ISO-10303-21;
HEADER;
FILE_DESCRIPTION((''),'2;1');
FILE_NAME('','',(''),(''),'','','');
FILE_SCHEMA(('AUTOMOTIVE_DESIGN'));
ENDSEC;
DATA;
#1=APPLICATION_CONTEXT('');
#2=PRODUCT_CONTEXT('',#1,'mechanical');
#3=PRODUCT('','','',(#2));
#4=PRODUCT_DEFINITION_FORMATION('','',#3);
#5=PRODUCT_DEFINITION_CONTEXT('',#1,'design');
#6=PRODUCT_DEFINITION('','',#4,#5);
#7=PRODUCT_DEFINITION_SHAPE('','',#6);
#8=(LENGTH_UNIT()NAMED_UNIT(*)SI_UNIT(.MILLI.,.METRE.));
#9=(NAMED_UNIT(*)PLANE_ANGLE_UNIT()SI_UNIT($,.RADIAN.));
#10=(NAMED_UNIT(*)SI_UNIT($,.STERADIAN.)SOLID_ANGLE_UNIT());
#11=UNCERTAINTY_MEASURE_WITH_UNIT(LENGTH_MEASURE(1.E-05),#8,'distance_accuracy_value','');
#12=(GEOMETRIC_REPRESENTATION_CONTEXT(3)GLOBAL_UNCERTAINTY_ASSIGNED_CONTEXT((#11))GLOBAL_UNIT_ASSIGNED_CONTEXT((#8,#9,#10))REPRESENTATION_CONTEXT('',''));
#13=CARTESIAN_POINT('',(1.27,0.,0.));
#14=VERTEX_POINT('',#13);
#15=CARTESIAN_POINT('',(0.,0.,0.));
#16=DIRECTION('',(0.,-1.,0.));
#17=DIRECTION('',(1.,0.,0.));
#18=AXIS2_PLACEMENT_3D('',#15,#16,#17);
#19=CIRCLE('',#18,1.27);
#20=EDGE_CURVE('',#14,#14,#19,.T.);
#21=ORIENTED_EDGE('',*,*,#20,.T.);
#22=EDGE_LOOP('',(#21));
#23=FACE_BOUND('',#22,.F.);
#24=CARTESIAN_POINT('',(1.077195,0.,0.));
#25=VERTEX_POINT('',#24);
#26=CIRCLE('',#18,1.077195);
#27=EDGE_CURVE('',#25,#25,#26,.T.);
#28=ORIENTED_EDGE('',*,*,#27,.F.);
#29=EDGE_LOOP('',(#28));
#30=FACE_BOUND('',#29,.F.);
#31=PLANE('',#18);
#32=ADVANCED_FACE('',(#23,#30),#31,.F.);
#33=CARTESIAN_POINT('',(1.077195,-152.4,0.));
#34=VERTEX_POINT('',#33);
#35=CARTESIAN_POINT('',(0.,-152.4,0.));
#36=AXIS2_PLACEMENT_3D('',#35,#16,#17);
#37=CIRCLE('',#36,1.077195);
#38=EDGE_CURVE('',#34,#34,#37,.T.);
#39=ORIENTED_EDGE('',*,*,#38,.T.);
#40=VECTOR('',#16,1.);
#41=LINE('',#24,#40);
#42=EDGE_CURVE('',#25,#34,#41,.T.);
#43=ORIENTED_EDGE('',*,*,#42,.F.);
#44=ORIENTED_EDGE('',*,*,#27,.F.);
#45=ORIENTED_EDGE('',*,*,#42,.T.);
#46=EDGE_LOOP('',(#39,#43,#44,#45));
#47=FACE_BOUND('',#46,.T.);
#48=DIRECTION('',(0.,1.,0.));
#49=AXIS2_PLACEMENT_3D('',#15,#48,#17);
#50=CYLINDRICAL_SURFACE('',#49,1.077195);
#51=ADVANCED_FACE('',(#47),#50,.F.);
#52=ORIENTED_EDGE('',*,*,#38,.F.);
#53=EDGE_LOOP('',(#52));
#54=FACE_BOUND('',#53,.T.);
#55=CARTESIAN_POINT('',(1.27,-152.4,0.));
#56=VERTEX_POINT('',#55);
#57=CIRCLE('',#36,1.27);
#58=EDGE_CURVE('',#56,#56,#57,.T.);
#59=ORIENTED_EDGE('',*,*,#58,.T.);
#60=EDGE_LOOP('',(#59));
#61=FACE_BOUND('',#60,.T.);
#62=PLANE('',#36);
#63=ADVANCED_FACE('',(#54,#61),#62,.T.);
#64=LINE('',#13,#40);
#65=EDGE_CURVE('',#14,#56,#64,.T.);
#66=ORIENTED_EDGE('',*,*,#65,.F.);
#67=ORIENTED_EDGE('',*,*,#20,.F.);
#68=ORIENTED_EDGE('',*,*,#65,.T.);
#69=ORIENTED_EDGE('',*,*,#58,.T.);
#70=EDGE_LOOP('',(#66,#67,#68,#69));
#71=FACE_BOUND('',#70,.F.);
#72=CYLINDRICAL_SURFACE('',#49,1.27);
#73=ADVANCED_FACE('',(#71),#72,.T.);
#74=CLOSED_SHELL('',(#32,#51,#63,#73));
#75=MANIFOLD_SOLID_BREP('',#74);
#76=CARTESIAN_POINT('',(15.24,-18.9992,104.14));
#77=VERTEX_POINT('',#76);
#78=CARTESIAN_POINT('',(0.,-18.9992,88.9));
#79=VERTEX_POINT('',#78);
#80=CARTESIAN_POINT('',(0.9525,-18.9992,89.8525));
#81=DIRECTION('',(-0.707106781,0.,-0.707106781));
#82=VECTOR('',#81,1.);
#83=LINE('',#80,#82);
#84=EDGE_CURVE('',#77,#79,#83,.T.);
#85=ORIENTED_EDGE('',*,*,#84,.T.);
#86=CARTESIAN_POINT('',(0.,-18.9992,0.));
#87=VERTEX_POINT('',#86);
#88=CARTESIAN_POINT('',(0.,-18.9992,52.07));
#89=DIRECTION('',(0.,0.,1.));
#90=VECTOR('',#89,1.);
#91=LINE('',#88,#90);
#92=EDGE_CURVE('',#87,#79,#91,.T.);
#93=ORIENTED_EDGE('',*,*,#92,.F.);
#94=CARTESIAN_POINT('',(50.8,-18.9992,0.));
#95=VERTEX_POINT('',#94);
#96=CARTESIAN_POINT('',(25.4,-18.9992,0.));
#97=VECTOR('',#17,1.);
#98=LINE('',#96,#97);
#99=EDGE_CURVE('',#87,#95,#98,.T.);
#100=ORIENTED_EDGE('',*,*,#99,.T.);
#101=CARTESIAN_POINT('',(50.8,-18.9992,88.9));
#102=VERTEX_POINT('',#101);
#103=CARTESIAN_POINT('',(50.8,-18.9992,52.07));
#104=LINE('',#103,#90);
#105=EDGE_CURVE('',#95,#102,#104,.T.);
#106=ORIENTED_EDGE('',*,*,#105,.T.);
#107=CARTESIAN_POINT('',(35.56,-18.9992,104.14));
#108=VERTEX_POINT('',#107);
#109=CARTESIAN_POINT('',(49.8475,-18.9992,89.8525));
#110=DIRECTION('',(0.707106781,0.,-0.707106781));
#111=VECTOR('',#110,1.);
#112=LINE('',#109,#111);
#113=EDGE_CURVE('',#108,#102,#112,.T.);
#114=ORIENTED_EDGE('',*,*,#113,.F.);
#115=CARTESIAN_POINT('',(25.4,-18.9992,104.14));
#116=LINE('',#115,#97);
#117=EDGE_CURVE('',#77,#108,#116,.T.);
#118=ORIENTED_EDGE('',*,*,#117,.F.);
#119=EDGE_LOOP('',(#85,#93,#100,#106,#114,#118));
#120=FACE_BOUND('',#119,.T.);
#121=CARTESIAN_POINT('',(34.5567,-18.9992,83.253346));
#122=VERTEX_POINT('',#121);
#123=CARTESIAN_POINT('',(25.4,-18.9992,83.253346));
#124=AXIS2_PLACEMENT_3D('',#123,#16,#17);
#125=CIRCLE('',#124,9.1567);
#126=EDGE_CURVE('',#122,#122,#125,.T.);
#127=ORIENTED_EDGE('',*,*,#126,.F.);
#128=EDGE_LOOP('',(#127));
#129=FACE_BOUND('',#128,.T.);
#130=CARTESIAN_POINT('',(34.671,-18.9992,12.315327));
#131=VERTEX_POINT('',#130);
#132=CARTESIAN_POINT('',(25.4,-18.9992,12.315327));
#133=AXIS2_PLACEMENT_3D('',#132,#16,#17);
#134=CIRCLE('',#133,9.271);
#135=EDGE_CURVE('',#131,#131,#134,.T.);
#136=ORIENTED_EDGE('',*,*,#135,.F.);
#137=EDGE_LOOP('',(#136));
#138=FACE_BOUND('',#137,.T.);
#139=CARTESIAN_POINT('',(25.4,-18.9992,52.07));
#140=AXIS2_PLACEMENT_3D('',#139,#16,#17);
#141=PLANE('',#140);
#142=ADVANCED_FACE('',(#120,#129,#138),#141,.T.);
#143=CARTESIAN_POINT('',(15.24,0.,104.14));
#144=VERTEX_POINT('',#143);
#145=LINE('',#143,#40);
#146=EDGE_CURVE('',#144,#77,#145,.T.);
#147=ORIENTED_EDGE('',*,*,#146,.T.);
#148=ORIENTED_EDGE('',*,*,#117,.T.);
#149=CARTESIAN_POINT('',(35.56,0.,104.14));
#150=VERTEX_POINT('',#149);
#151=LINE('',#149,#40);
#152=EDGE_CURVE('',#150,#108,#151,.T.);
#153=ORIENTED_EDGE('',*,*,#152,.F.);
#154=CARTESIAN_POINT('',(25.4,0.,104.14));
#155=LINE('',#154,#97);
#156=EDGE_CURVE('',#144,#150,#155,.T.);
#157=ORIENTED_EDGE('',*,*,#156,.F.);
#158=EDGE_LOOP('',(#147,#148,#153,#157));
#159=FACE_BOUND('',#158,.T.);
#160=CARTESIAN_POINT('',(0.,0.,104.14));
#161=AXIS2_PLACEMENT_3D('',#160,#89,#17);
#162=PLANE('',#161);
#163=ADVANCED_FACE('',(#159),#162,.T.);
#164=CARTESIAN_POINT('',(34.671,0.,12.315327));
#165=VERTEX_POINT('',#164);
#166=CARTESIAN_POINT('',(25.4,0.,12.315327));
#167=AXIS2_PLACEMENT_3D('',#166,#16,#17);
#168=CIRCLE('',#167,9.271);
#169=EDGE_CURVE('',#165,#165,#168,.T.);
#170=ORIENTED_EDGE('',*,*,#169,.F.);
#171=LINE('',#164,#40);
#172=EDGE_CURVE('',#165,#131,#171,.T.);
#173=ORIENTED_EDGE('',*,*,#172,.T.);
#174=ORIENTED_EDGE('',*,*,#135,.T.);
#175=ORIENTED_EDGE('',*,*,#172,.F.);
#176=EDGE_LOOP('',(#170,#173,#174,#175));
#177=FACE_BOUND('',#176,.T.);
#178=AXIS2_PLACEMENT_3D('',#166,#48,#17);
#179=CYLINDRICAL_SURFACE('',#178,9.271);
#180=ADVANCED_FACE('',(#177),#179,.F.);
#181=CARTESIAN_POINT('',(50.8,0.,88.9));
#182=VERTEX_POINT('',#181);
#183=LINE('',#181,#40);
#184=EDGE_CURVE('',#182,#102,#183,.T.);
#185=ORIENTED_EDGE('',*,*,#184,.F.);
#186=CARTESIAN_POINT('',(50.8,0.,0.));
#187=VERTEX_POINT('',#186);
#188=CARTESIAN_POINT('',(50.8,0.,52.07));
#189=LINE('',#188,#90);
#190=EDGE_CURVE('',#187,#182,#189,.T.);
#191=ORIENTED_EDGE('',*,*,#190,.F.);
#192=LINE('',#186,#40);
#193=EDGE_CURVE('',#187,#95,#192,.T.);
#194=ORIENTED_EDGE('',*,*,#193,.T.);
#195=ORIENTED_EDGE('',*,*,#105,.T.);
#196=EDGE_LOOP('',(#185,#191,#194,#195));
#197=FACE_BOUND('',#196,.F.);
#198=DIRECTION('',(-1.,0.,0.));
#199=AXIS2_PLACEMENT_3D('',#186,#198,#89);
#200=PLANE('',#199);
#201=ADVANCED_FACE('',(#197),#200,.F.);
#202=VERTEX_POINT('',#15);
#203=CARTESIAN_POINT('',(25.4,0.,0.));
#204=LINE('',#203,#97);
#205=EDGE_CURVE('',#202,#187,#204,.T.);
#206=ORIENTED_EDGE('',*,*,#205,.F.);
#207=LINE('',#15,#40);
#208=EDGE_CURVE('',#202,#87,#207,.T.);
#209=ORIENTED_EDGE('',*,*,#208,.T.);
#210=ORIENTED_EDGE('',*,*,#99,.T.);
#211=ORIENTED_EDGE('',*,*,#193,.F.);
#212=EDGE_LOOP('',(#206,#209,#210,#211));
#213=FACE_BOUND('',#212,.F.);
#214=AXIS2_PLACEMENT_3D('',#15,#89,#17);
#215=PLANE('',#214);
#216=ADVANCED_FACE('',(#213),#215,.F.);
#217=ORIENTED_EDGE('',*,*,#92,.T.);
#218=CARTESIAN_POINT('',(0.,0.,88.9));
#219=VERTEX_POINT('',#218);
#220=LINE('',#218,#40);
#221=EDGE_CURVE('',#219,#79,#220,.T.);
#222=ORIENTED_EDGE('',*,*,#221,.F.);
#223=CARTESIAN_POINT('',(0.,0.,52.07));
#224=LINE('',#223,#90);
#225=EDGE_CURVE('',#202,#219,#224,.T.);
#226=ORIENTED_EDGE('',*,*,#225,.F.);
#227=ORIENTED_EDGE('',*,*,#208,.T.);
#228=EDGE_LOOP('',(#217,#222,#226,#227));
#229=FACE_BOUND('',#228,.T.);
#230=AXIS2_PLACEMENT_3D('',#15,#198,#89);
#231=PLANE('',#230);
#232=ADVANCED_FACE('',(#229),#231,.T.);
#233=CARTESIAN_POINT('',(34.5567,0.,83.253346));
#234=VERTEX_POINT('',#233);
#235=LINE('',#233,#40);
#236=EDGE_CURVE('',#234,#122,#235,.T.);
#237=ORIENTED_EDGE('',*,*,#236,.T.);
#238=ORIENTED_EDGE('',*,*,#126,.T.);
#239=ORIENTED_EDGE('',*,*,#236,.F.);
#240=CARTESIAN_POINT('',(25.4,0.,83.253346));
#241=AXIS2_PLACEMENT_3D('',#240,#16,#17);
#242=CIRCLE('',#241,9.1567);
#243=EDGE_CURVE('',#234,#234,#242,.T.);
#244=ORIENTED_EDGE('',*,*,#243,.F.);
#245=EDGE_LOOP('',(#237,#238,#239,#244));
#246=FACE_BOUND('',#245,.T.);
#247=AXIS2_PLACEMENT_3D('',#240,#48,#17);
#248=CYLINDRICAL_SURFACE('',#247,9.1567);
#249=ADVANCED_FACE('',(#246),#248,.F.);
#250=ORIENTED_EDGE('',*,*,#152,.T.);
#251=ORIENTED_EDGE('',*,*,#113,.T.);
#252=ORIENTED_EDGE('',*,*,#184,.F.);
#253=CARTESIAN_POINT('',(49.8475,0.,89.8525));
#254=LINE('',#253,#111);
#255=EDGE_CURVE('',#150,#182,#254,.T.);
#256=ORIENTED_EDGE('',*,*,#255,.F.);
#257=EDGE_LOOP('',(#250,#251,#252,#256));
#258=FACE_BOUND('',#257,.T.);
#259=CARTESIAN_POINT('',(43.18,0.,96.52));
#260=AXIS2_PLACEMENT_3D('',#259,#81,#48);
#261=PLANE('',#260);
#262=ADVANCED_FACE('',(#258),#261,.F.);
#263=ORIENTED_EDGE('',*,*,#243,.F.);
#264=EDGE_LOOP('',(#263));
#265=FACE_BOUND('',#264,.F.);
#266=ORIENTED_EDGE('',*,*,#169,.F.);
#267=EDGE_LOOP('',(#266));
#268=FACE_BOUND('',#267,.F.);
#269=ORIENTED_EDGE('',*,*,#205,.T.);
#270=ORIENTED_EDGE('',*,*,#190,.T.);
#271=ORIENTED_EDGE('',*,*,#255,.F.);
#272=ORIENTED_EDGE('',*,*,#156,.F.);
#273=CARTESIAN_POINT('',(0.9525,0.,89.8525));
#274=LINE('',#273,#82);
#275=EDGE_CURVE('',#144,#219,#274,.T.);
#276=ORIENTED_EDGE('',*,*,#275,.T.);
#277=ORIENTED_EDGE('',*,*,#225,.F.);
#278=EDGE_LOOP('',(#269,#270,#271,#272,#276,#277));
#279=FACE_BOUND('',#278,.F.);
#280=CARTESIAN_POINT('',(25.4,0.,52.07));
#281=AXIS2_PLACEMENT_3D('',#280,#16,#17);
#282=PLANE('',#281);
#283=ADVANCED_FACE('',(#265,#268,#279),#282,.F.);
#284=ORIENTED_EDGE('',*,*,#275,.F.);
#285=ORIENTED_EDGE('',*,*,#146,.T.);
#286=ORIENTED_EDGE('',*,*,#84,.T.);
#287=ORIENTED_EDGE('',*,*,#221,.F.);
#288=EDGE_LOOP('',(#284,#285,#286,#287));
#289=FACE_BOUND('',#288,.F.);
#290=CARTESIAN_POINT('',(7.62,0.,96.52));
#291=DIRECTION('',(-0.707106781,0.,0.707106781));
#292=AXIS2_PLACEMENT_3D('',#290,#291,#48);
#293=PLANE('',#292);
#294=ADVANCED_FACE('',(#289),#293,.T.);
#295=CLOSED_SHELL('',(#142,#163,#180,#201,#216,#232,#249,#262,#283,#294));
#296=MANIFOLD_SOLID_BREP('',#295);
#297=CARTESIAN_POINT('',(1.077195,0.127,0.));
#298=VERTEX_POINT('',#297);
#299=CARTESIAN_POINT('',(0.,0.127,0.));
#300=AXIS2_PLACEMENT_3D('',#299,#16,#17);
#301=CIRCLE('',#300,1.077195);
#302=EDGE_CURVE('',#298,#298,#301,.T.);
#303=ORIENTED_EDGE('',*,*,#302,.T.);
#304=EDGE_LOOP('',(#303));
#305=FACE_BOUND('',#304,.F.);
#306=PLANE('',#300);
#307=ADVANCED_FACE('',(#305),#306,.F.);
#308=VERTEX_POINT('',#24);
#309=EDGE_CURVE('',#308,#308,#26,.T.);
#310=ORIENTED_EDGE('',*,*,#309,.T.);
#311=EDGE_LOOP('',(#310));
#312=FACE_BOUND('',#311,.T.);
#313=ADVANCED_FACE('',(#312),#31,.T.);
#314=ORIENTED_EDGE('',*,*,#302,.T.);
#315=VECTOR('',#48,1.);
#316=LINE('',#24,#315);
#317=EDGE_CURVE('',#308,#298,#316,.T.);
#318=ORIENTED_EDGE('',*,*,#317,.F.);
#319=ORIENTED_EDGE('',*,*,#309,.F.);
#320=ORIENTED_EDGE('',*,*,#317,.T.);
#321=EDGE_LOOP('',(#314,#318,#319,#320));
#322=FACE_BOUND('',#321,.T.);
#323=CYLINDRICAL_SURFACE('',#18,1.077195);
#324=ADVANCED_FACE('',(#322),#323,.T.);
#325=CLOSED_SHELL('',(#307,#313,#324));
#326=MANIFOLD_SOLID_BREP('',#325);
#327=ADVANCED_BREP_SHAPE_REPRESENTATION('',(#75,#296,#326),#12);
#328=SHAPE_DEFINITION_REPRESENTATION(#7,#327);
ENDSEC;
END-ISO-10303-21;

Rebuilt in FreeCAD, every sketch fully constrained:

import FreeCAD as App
import Part
import Sketcher
from FreeCAD import Vector
Q = App.Units.Quantity


def edges_at(feature, points):
    """Names of the edges that pass closest to the given points."""
    edges = feature.Shape.Edges
    near = lambda p: min(range(len(edges)), key=lambda i: edges[i].distToShape(Part.Vertex(*p))[0])
    return sorted({f"Edge{near(p) + 1}" for p in points})

doc = App.newDocument("Part")
body = doc.addObject("PartDesign::Body", "Body")

sketch1 = doc.addObject("Sketcher::SketchObject", "Sketch")
body.addObject(sketch1)
sketch1.AttachmentSupport = (doc.XZ_Plane, [""])
sketch1.MapMode = "FlatFace"
sketch1.addGeometry([
    Part.Circle(Vector(0, 0, 0), Vector(0, 0, 1), 1.3),
    Part.Circle(Vector(0, 0, 0), Vector(0, 0, 1), 1.1),
], False)
sketch1.addConstraint([
    Sketcher.Constraint("Coincident", 0, 3, -1, 1),
    Sketcher.Constraint("Coincident", 1, 3, -1, 1),
    Sketcher.Constraint("Diameter", 0, Q("0.1 in")),
    Sketcher.Constraint("Diameter", 1, 2.15439),
])
pad1 = doc.addObject("PartDesign::Pad", "Pad")
body.addObject(pad1)
pad1.Profile = sketch1
pad1.Length = Q("6 in")
body2 = doc.addObject("PartDesign::Body", "Body001")

sketch2 = doc.addObject("Sketcher::SketchObject", "Sketch001")
body2.addObject(sketch2)
sketch2.AttachmentSupport = (doc.getObject("XZ_Plane001"), [""])
sketch2.MapMode = "FlatFace"
sketch2.addGeometry(Part.Circle(Vector(0, 0, 0), Vector(0, 0, 1), 1.1), False)
sketch2.addConstraint([
    Sketcher.Constraint("Coincident", 0, 3, -1, 1),
    Sketcher.Constraint("Diameter", 0, 2.15439),
])
pad2 = doc.addObject("PartDesign::Pad", "Pad001")
body2.addObject(pad2)
pad2.Profile = sketch2
pad2.Length = Q("0.005 in")
pad2.Reversed = True
body3 = doc.addObject("PartDesign::Body", "Body002")

sketch3 = doc.addObject("Sketcher::SketchObject", "Sketch002")
body3.addObject(sketch3)
sketch3.AttachmentSupport = (doc.getObject("XZ_Plane002"), [""])
sketch3.MapMode = "FlatFace"
sketch3.addGeometry([
    Part.LineSegment(Vector(0, 104, 0), Vector(0, 0, 0)),
    Part.LineSegment(Vector(0, 0, 0), Vector(51, 0, 0)),
    Part.LineSegment(Vector(51, 0, 0), Vector(51, 104, 0)),
    Part.LineSegment(Vector(51, 104, 0), Vector(0, 104, 0)),
    Part.Circle(Vector(25, 12, 0), Vector(0, 0, 1), 9),
    Part.Circle(Vector(25, 83, 0), Vector(0, 0, 1), 9),
], False)
sketch3.addConstraint([
    Sketcher.Constraint("Coincident", 0, 2, 1, 1),
    Sketcher.Constraint("Coincident", 1, 2, 2, 1),
    Sketcher.Constraint("Coincident", 2, 2, 3, 1),
    Sketcher.Constraint("Coincident", 3, 2, 0, 1),
    Sketcher.Constraint("Vertical", 0),
    Sketcher.Constraint("Horizontal", 1),
    Sketcher.Constraint("Vertical", 2),
    Sketcher.Constraint("Horizontal", 3),
    Sketcher.Constraint("Coincident", 0, 2, -1, 1),
    Sketcher.Constraint("Vertical", 4, 3, 5, 3),
    Sketcher.Constraint("Diameter", 4, Q("0.73 in")),
    Sketcher.Constraint("DistanceX", 1, 1, 1, 2, Q("2 in")),
    Sketcher.Constraint("Diameter", 5, Q("0.721 in")),
    Sketcher.Constraint("DistanceY", 0, 2, 0, 1, Q("4.1 in")),
    Sketcher.Constraint("DistanceX", -1, 1, 4, 3, Q("1 in")),
    Sketcher.Constraint("DistanceY", 4, 3, 5, 3, 70.938019),
    Sketcher.Constraint("DistanceY", -1, 1, 4, 3, 12.315327),
])
pad3 = doc.addObject("PartDesign::Pad", "Pad002")
body3.addObject(pad3)
pad3.Profile = sketch3
pad3.Length = Q("0.748 in")
doc.recompute()

chamfer = doc.addObject("PartDesign::Chamfer", "Chamfer")
body3.addObject(chamfer)
chamfer.Base = (pad3, edges_at(pad3, [(50.8, -9.5, 104.14)]))
chamfer.Size = Q("0.6 in")
doc.recompute()

chamfer2 = doc.addObject("PartDesign::Chamfer", "Chamfer001")
body3.addObject(chamfer2)
chamfer2.Base = (chamfer, edges_at(chamfer, [(0, -9.5, 104.14)]))
chamfer2.Size = Q("0.6 in")

doc.recompute()
